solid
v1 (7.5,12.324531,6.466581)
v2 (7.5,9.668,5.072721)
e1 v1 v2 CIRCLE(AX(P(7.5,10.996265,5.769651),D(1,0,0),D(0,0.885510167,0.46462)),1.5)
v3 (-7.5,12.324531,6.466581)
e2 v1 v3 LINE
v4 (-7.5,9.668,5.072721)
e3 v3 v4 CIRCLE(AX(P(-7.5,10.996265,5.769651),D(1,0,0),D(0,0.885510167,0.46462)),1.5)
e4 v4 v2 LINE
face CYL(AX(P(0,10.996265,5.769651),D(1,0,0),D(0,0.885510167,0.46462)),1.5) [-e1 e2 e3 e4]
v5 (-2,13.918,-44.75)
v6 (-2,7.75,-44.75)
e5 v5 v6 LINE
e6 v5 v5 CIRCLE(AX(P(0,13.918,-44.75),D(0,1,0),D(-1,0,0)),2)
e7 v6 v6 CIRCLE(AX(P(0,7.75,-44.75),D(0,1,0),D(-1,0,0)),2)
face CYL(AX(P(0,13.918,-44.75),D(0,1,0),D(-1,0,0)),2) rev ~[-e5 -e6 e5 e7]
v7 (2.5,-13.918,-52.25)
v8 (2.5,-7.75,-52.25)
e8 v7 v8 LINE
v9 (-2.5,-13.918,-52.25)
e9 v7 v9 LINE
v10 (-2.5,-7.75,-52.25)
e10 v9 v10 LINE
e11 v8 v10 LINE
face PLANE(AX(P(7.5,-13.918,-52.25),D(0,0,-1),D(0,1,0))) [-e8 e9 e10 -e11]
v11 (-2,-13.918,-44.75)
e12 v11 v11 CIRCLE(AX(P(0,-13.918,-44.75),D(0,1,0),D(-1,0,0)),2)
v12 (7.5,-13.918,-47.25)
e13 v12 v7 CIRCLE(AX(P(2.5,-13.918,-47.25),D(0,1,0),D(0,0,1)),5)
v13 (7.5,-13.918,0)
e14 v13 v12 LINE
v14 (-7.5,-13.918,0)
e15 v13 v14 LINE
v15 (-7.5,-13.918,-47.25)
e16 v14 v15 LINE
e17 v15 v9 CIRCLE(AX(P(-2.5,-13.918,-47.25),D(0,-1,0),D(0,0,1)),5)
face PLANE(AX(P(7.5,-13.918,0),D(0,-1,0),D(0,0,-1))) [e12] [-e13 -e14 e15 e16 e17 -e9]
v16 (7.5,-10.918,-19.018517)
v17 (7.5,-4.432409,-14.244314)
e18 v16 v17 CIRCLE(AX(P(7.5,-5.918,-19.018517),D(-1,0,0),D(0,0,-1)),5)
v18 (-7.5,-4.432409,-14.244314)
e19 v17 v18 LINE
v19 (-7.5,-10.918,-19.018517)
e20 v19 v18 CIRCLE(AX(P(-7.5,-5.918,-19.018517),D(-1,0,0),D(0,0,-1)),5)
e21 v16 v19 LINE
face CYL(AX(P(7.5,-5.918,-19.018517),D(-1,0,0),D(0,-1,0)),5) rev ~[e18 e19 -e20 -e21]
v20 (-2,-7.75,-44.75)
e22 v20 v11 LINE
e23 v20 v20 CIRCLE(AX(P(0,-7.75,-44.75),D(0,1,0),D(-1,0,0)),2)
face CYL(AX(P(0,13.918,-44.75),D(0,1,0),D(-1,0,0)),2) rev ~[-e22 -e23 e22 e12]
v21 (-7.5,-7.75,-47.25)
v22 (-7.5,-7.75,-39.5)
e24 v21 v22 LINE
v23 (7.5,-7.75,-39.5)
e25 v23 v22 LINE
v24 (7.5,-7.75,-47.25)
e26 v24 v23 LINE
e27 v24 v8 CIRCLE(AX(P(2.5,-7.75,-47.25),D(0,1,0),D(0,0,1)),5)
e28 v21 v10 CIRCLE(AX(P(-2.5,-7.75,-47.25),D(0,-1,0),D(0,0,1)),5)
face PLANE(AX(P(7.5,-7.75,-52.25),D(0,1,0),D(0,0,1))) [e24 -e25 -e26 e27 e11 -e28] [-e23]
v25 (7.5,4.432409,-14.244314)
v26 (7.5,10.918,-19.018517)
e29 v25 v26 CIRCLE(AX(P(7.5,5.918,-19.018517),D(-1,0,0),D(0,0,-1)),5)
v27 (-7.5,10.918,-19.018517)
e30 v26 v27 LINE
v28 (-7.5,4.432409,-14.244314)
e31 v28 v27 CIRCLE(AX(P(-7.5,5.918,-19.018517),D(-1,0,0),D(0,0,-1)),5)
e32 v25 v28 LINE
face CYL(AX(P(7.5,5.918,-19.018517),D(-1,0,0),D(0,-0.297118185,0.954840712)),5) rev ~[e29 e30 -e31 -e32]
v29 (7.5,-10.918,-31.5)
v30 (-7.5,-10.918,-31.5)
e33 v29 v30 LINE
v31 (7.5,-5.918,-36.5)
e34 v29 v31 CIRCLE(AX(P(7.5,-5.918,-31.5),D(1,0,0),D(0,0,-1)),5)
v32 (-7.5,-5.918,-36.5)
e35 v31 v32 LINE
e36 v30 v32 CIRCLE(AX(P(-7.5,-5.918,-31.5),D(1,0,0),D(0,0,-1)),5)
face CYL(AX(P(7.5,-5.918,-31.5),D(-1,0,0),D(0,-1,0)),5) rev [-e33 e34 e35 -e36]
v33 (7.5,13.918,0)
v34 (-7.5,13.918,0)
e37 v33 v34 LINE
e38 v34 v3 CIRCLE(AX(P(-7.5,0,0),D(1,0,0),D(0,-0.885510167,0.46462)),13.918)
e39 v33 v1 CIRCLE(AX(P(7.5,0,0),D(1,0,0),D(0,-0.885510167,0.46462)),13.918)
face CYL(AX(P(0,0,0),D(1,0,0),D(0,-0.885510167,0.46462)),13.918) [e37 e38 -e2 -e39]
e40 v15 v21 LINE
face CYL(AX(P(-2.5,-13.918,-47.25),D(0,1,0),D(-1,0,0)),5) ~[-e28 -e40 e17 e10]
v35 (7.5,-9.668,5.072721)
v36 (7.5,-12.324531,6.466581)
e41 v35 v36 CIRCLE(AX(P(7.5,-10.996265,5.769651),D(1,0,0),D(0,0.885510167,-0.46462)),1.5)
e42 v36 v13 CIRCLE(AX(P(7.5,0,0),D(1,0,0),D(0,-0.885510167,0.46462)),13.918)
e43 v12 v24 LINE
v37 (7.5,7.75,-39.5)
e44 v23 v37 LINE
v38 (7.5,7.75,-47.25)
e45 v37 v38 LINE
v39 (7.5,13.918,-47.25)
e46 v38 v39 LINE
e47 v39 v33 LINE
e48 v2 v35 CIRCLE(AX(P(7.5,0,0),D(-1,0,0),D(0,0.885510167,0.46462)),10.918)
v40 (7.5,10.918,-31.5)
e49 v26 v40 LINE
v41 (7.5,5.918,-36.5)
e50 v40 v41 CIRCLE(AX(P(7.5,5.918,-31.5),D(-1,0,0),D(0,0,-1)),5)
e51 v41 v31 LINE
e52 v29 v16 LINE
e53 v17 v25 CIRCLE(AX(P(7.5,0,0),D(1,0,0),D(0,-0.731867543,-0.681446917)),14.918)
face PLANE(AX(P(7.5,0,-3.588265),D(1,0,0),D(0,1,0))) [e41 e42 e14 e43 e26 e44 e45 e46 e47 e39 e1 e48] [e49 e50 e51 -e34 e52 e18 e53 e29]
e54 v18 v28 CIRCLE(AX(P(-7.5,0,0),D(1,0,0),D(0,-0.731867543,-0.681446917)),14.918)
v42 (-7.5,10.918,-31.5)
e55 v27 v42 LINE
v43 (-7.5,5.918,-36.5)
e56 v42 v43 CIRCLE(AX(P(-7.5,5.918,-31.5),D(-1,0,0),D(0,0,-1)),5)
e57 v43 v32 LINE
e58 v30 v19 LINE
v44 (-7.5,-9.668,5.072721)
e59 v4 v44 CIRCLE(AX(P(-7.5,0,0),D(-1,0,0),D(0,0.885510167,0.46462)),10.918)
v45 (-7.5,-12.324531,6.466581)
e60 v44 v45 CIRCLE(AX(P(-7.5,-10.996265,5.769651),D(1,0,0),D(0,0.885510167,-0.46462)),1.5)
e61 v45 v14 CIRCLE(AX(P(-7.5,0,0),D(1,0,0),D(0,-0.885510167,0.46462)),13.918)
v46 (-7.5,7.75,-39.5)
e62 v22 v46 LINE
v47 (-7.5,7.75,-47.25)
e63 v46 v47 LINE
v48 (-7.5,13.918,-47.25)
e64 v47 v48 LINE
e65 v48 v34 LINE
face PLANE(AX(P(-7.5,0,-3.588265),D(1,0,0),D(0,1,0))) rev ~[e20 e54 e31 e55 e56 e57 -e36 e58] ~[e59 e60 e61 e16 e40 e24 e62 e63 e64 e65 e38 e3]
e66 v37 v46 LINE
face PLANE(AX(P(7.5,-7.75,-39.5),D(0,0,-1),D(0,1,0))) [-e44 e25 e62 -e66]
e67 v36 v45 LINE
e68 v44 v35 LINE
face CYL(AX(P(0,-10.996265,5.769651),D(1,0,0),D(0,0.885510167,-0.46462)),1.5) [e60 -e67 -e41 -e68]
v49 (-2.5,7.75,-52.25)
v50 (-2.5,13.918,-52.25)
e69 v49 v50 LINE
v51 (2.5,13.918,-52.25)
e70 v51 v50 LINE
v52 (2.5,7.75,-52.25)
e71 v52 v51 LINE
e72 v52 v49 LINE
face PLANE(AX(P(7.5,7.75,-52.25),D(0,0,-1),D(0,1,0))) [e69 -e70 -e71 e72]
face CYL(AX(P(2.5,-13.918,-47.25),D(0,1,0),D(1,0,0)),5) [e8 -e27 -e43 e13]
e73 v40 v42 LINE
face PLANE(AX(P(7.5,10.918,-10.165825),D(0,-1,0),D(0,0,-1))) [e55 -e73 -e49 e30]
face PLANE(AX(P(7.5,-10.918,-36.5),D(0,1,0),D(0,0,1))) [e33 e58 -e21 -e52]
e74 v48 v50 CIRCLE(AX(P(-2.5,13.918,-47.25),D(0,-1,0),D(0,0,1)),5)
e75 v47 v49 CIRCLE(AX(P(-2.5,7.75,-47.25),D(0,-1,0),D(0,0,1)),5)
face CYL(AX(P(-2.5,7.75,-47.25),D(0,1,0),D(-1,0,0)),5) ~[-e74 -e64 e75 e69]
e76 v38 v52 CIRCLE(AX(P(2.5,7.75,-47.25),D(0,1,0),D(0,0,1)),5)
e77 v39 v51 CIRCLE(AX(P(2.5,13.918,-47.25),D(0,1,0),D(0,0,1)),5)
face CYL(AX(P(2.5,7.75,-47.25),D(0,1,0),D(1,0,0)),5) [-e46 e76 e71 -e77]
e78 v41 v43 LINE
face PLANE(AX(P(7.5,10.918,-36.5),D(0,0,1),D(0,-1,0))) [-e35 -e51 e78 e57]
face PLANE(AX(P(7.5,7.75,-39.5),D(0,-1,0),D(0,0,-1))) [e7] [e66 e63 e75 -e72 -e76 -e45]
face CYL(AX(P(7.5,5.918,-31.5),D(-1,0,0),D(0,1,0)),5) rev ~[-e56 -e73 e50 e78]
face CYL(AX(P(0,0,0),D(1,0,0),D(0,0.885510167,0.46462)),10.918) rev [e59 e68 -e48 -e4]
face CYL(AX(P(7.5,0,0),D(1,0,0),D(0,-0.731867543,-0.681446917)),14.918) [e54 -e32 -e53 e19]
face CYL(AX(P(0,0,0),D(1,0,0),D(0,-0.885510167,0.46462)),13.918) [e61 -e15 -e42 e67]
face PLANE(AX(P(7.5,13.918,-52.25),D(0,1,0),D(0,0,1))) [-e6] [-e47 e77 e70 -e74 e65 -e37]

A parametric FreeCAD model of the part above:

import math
import FreeCAD as App
import Part
import Sketcher

V = App.Vector


def edges_at(feature, points):
    """Names of the edges that pass closest to the given points."""
    edges = feature.Shape.Edges
    near = lambda p: min(range(len(edges)), key=lambda i: edges[i].distToShape(Part.Vertex(*p))[0])
    return sorted({f"Edge{near(p) + 1}" for p in points})

doc = App.newDocument("Part")
body = doc.addObject("PartDesign::Body", "Body")

# Sketch on YZ plane
sketch1 = doc.addObject("Sketcher::SketchObject", "Sketch")
body.addObject(sketch1)
sketch1.AttachmentSupport = (doc.YZ_Plane, [""])
sketch1.MapMode = "FlatFace"
sketch1.addGeometry([
    Part.ArcOfCircle(Part.Circle(V(11, 5.8, 0), V(0, 0, 1), 1.5), math.radians(28), math.radians(208)),
    Part.ArcOfCircle(Part.Circle(V(0, 0, 0), V(0, 0, 1), 10.9), math.radians(152), math.radians(388)),
    Part.ArcOfCircle(Part.Circle(V(-11, 5.8, 0), V(0, 0, 1), 1.5), math.radians(-28), math.radians(152)),
    Part.ArcOfCircle(Part.Circle(V(0, 0, 0), V(0, 0, 1), 13.9), math.radians(152), math.radians(388)),
], False)
sketch1.addConstraint([
    Sketcher.Constraint("Tangent", 0, 2, 1, 2),
    Sketcher.Constraint("Tangent", 1, 1, 2, 1),
    Sketcher.Constraint("Tangent", 2, 2, 3, 1),
    Sketcher.Constraint("Tangent", 3, 2, 0, 1),
    Sketcher.Constraint("Coincident", 1, 3, -1, 1),
    Sketcher.Constraint("Coincident", 3, 3, -1, 1),
    Sketcher.Constraint("Horizontal", 0, 3, 2, 3),
    Sketcher.Constraint("Radius", 0, 1.5),
    Sketcher.Constraint("Radius", 1, 10.918),
    Sketcher.Constraint("DistanceX", -1, 1, 0, 2, 9.668),
])
pad1 = doc.addObject("PartDesign::Pad", "Pad")
body.addObject(pad1)
pad1.Profile = sketch1
pad1.Length = 15
pad1.Midplane = True

# Sketch on YZ plane
sketch2 = doc.addObject("Sketcher::SketchObject", "Sketch001")
body.addObject(sketch2)
sketch2.AttachmentSupport = (doc.YZ_Plane, [""])
sketch2.MapMode = "FlatFace"
sketch2.AttachmentOffset = App.Placement(V(0, 0, 7.5), App.Rotation())
sketch2.addGeometry([
    Part.ArcOfCircle(Part.Circle(V(0, 0, 0), V(0, 0, 1), 14), math.radians(180), math.radians(360)),  # 0
    Part.LineSegment(V(-14, 0, 0), V(-14, -52, 0)),  # 1
    Part.LineSegment(V(-14, -52, 0), V(-8, -52, 0)),  # 2
    Part.LineSegment(V(-8, -52, 0), V(-8, -40, 0)),  # 3
    Part.LineSegment(V(-8, -40, 0), V(8, -40, 0)),  # 4
    Part.LineSegment(V(8, -40, 0), V(8, -52, 0)),  # 5
    Part.LineSegment(V(8, -52, 0), V(14, -52, 0)),  # 6
    Part.LineSegment(V(14, -52, 0), V(14, 0, 0)),  # 7
    Part.LineSegment(V(11, -36, 0), V(-11, -36, 0)),  # 8
    Part.LineSegment(V(-11, -36, 0), V(-11, -10, 0)),  # 9
    Part.ArcOfCircle(Part.Circle(V(0, 0, 0), V(0, 0, 1), 15), math.radians(-137), math.radians(-43)),  # 10
    Part.LineSegment(V(11, -10, 0), V(11, -36, 0)),  # 11
], False)
sketch2.addConstraint([
    Sketcher.Constraint("Tangent", 0, 1, 1, 1),
    Sketcher.Constraint("Coincident", 1, 2, 2, 1),
    Sketcher.Constraint("Coincident", 2, 2, 3, 1),
    Sketcher.Constraint("Coincident", 3, 2, 4, 1),
    Sketcher.Constraint("Coincident", 4, 2, 5, 1),
    Sketcher.Constraint("Coincident", 5, 2, 6, 1),
    Sketcher.Constraint("Coincident", 6, 2, 7, 1),
    Sketcher.Constraint("Tangent", 7, 2, 0, 2),
    Sketcher.Constraint("Coincident", 8, 2, 9, 1),
    Sketcher.Constraint("Coincident", 9, 2, 10, 1),
    Sketcher.Constraint("Coincident", 10, 2, 11, 1),
    Sketcher.Constraint("Coincident", 11, 2, 8, 1),
    Sketcher.Constraint("Vertical", 1),
    Sketcher.Constraint("Horizontal", 2),
    Sketcher.Constraint("Vertical", 3),
    Sketcher.Constraint("Horizontal", 4),
    Sketcher.Constraint("Vertical", 5),
    Sketcher.Constraint("Horizontal", 6),
    Sketcher.Constraint("Vertical", 7),
    Sketcher.Constraint("Horizontal", 8),
    Sketcher.Constraint("Vertical", 9),
    Sketcher.Constraint("Vertical", 11),
    Sketcher.Constraint("Coincident", 0, 3, -1, 1),
    Sketcher.Constraint("Coincident", 10, 3, -1, 1),
    Sketcher.Constraint("Symmetric", 2, 2, 5, 2, -2),
    Sketcher.Constraint("Horizontal", 9, 2, 10, 2),
    Sketcher.Constraint("DistanceX", 4, 1, 4, 2, 15.5),
    Sketcher.Constraint("Radius", 0, 13.918),
    Sketcher.Constraint("Radius", 10, 14.918),
    Sketcher.Constraint("DistanceY", 3, 2, 8, 2, 3.0),
    Sketcher.Constraint("DistanceX", 1, 2, 8, 2, 3.0),
    Sketcher.Constraint("DistanceY", 1, 2, 1, 1, 52.25),
    Sketcher.Constraint("DistanceY", 3, 1, 3, 2, 12.75),
])
pad2 = doc.addObject("PartDesign::Pad", "Pad001")
body.addObject(pad2)
pad2.Profile = sketch2
pad2.Length = 15
pad2.Reversed = True

# Sketch on XZ plane
sketch3 = doc.addObject("Sketcher::SketchObject", "Sketch002")
body.addObject(sketch3)
sketch3.AttachmentSupport = (doc.XZ_Plane, [""])
sketch3.MapMode = "FlatFace"
sketch3.AttachmentOffset = App.Placement(V(0, 0, -13.918), App.Rotation())
sketch3.addGeometry(Part.Circle(V(0, -44.8, 0), V(0, 0, 1), 2), False)
sketch3.addConstraint([
    Sketcher.Constraint("PointOnObject", 0, 3, -2),
    Sketcher.Constraint("Diameter", 0, 4.0),
    Sketcher.Constraint("DistanceY", 0, 3, -1, 1, 44.75),
])
pocket1 = doc.addObject("PartDesign::Pocket", "Pocket")
body.addObject(pocket1)
pocket1.Profile = sketch3
pocket1.Type = "ThroughAll"
pocket1.Reversed = True
doc.recompute()

fillet = doc.addObject("PartDesign::Fillet", "Fillet")
body.addObject(fillet)
fillet.Base = (pocket1, edges_at(pocket1, [
    (7.5, -10.834, -52.25),
    (-7.5, -10.834, -52.25),
    (7.5, 10.834, -52.25),
    (-7.5, 10.834, -52.25),
    (0, -10.918, -10.166),
    (0, 10.918, -10.166),
    (0, -10.918, -36.5),
    (0, 10.918, -36.5),
]))
fillet.Radius = 5

doc.recompute()
